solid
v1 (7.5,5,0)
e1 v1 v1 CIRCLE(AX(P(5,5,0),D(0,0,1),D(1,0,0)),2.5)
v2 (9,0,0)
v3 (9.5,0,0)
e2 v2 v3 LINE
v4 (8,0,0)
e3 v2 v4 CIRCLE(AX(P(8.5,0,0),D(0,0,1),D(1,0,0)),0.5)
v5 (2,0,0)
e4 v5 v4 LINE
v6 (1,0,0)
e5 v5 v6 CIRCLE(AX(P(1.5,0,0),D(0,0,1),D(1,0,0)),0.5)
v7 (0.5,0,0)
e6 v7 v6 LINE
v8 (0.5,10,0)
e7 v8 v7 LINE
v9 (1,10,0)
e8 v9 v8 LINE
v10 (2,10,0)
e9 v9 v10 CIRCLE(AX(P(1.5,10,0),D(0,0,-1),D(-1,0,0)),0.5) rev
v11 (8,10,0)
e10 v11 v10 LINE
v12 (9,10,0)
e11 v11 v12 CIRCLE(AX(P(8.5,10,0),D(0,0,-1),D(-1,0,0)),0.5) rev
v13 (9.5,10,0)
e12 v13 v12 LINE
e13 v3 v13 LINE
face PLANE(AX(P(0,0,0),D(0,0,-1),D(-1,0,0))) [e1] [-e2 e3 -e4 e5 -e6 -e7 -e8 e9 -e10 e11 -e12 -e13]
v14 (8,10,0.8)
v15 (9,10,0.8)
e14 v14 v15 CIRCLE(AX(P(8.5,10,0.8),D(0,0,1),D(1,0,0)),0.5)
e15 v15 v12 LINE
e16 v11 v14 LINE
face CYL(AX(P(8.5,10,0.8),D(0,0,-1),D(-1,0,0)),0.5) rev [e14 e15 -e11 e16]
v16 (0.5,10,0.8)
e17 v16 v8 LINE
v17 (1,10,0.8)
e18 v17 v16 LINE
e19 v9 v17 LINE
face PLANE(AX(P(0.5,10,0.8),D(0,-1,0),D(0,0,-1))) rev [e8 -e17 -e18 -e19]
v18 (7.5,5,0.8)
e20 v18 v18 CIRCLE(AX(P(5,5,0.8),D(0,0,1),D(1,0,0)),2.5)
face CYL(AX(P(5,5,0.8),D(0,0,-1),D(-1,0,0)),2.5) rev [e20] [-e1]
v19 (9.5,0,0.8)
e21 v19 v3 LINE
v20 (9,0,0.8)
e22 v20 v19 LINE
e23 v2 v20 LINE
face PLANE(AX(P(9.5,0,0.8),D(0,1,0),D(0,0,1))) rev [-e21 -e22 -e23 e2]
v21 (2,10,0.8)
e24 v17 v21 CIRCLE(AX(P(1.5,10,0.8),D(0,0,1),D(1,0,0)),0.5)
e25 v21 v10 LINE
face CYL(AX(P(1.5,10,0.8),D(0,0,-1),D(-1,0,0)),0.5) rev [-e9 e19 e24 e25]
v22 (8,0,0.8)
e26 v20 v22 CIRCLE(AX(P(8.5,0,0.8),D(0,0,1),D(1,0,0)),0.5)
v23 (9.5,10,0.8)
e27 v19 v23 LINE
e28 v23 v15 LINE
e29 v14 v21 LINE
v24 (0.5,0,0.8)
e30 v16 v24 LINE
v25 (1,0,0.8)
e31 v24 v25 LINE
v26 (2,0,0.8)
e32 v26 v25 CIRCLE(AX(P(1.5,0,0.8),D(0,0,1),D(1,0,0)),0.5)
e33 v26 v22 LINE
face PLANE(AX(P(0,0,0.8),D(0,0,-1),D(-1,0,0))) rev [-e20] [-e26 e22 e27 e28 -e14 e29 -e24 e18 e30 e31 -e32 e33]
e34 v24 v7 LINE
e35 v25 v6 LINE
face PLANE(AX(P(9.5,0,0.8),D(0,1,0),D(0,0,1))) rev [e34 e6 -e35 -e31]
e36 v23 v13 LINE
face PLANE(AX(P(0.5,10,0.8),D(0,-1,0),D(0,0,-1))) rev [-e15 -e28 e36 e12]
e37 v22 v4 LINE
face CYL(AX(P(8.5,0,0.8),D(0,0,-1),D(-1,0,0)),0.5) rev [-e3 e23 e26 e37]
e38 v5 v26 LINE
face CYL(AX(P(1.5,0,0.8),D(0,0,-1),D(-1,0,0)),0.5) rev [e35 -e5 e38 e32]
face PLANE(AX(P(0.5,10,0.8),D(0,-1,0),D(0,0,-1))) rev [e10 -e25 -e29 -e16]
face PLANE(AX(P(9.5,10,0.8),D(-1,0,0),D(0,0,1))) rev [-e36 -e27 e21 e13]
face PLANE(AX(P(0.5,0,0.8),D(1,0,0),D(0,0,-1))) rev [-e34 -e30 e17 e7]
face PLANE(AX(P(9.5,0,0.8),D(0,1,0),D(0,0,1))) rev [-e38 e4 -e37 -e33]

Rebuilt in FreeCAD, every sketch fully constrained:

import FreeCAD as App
import Part
import Sketcher
from FreeCAD import Vector
Q = App.Units.Quantity

doc = App.newDocument("Part")
body = doc.addObject("PartDesign::Body", "Body")

# Sketch on XY plane
sketch1 = body.newObject("Sketcher::SketchObject", "Sketch")
sketch1.AttachmentSupport = (doc.getObject("XY_Plane"), [""])
sketch1.MapMode = "FlatFace"
sketch1.addGeometry(Part.LineSegment(Vector(0.5, 10, 0), Vector(0.5, 0, 0)), False)
sketch1.addGeometry(Part.LineSegment(Vector(0.5, 0, 0), Vector(9.5, 0, 0)), False)
sketch1.addGeometry(Part.LineSegment(Vector(9.5, 0, 0), Vector(9.5, 10, 0)), False)
sketch1.addGeometry(Part.LineSegment(Vector(9.5, 10, 0), Vector(0.5, 10, 0)), False)
sketch1.addConstraint(Sketcher.Constraint("Coincident", 0, 2, 1, 1))
sketch1.addConstraint(Sketcher.Constraint("Coincident", 1, 2, 2, 1))
sketch1.addConstraint(Sketcher.Constraint("Coincident", 2, 2, 3, 1))
sketch1.addConstraint(Sketcher.Constraint("Coincident", 3, 2, 0, 1))
sketch1.addConstraint(Sketcher.Constraint("Vertical", 0))
sketch1.addConstraint(Sketcher.Constraint("Horizontal", 1))
sketch1.addConstraint(Sketcher.Constraint("Vertical", 2))
sketch1.addConstraint(Sketcher.Constraint("Horizontal", 3))
sketch1.addConstraint(Sketcher.Constraint("PointOnObject", 0, 2, -1))
sketch1.addConstraint(Sketcher.Constraint("DistanceX", 1, 1, 1, 2, Q("9 mm")))
sketch1.addConstraint(Sketcher.Constraint("DistanceY", 0, 2, 0, 1, Q("10 mm")))
sketch1.addConstraint(Sketcher.Constraint("DistanceX", -1, 1, 0, 2, Q("0.5 mm")))
pad1 = body.newObject("PartDesign::Pad", "Pad")
pad1.Profile = sketch1
pad1.Length = 0.8

# Sketch on XY plane
sketch2 = body.newObject("Sketcher::SketchObject", "Sketch001")
sketch2.AttachmentSupport = (doc.getObject("XY_Plane"), [""])
sketch2.MapMode = "FlatFace"
sketch2.addGeometry(Part.Circle(Vector(5, 5, 0), Vector(0, 0, 1), 2.5), False)
sketch2.addConstraint(Sketcher.Constraint("Diameter", 0, Q("5 mm")))
sketch2.addConstraint(Sketcher.Constraint("DistanceX", -1, 1, 0, 3, Q("5 mm")))
sketch2.addConstraint(Sketcher.Constraint("DistanceY", -1, 1, 0, 3, Q("5 mm")))
pocket1 = body.newObject("PartDesign::Pocket", "Pocket")
pocket1.Profile = sketch2
pocket1.Type = "ThroughAll"
pocket1.Reversed = True

# Sketch on XY plane
sketch3 = body.newObject("Sketcher::SketchObject", "Sketch002")
sketch3.AttachmentSupport = (doc.getObject("XY_Plane"), [""])
sketch3.MapMode = "FlatFace"
sketch3.addGeometry(Part.Circle(Vector(1.5, 0, 0), Vector(0, 0, 1), 0.5), False)
sketch3.addGeometry(Part.Circle(Vector(1.5, 10, 0), Vector(0, 0, 1), 0.5), False)
sketch3.addGeometry(Part.Circle(Vector(8.5, 10, 0), Vector(0, 0, 1), 0.5), False)
sketch3.addGeometry(Part.Circle(Vector(8.5, 0, 0), Vector(0, 0, 1), 0.5), False)
sketch3.addConstraint(Sketcher.Constraint("Equal", 0, 1))
sketch3.addConstraint(Sketcher.Constraint("Equal", 1, 2))
sketch3.addConstraint(Sketcher.Constraint("Equal", 2, 3))
sketch3.addConstraint(Sketcher.Constraint("PointOnObject", 0, 3, -1))
sketch3.addConstraint(Sketcher.Constraint("PointOnObject", 3, 3, -1))
sketch3.addConstraint(Sketcher.Constraint("Horizontal", 1, 3, 2, 3))
sketch3.addConstraint(Sketcher.Constraint("Vertical", 0, 3, 1, 3))
sketch3.addConstraint(Sketcher.Constraint("Vertical", 2, 3, 3, 3))
sketch3.addConstraint(Sketcher.Constraint("Diameter", 0, Q("1 mm")))
sketch3.addConstraint(Sketcher.Constraint("DistanceY", -1, 1, 1, 3, Q("10 mm")))
sketch3.addConstraint(Sketcher.Constraint("DistanceX", 1, 3, 2, 3, Q("7 mm")))
sketch3.addConstraint(Sketcher.Constraint("DistanceX", -1, 1, 0, 3, Q("1.5 mm")))
pocket2 = body.newObject("PartDesign::Pocket", "Pocket001")
pocket2.Profile = sketch3
pocket2.Type = "ThroughAll"
pocket2.Reversed = True

doc.recompute()
